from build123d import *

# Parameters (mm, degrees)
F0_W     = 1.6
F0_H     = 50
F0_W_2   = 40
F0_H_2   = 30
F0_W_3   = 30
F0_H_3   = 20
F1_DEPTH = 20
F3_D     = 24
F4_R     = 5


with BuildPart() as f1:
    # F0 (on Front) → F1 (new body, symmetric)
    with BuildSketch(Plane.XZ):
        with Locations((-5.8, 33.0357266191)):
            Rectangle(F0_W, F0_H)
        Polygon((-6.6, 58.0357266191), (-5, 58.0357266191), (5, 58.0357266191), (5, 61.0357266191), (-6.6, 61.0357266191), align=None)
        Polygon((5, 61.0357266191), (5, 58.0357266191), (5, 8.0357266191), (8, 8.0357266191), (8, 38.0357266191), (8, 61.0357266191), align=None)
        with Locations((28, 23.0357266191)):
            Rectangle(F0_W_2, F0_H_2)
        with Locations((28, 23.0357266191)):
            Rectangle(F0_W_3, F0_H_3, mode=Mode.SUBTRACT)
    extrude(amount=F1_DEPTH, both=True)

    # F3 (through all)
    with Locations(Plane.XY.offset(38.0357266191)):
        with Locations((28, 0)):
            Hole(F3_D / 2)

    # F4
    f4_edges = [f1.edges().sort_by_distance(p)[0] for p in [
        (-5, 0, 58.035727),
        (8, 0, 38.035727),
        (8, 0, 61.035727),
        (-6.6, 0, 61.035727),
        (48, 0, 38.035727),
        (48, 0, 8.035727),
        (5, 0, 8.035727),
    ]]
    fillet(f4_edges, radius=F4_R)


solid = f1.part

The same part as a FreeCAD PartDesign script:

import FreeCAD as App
import Part
import Sketcher
Q = App.Units.Quantity


def edges_at(feature, points):
    """Names of the edges that pass closest to the given points."""
    edges = feature.Shape.Edges
    near = lambda p: min(range(len(edges)), key=lambda i: edges[i].distToShape(Part.Vertex(*p))[0])
    return sorted({f"Edge{near(p) + 1}" for p in points})

doc = App.newDocument("Part")
body = doc.addObject("PartDesign::Body", "Body")

# Sketch on XZ plane
sketch1 = body.newObject("Sketcher::SketchObject", "Sketch")
sketch1.AttachmentSupport = (doc.getObject("XZ_Plane"), [""])
sketch1.MapMode = "FlatFace"
sketch1.addGeometry([
    Part.LineSegment(App.Vector(-6.6, 8, 0), App.Vector(-5, 8, 0)),  # 0
    Part.LineSegment(App.Vector(-5, 8, 0), App.Vector(-5, 58, 0)),  # 1
    Part.LineSegment(App.Vector(-5, 58, 0), App.Vector(5, 58, 0)),  # 2
    Part.LineSegment(App.Vector(5, 58, 0), App.Vector(5, 8, 0)),  # 3
    Part.LineSegment(App.Vector(5, 8, 0), App.Vector(48, 8, 0)),  # 4
    Part.LineSegment(App.Vector(48, 8, 0), App.Vector(48, 38, 0)),  # 5
    Part.LineSegment(App.Vector(48, 38, 0), App.Vector(8, 38, 0)),  # 6
    Part.LineSegment(App.Vector(8, 38, 0), App.Vector(8, 61, 0)),  # 7
    Part.LineSegment(App.Vector(8, 61, 0), App.Vector(-6.6, 61, 0)),  # 8
    Part.LineSegment(App.Vector(-6.6, 61, 0), App.Vector(-6.6, 8, 0)),  # 9
    Part.LineSegment(App.Vector(43, 13, 0), App.Vector(13, 13, 0)),  # 10
    Part.LineSegment(App.Vector(13, 13, 0), App.Vector(13, 33, 0)),  # 11
    Part.LineSegment(App.Vector(13, 33, 0), App.Vector(43, 33, 0)),  # 12
    Part.LineSegment(App.Vector(43, 33, 0), App.Vector(43, 13, 0)),  # 13
], False)
sketch1.addConstraint([
    Sketcher.Constraint("Coincident", 0, 2, 1, 1),
    Sketcher.Constraint("Coincident", 1, 2, 2, 1),
    Sketcher.Constraint("Coincident", 2, 2, 3, 1),
    Sketcher.Constraint("Coincident", 3, 2, 4, 1),
    Sketcher.Constraint("Coincident", 4, 2, 5, 1),
    Sketcher.Constraint("Coincident", 5, 2, 6, 1),
    Sketcher.Constraint("Coincident", 6, 2, 7, 1),
    Sketcher.Constraint("Coincident", 7, 2, 8, 1),
    Sketcher.Constraint("Coincident", 8, 2, 9, 1),
    Sketcher.Constraint("Coincident", 9, 2, 0, 1),
    Sketcher.Constraint("Coincident", 10, 2, 11, 1),
    Sketcher.Constraint("Coincident", 11, 2, 12, 1),
    Sketcher.Constraint("Coincident", 12, 2, 13, 1),
    Sketcher.Constraint("Coincident", 13, 2, 10, 1),
    Sketcher.Constraint("Horizontal", 0),
    Sketcher.Constraint("Vertical", 1),
    Sketcher.Constraint("Horizontal", 2),
    Sketcher.Constraint("Vertical", 3),
    Sketcher.Constraint("Horizontal", 4),
    Sketcher.Constraint("Vertical", 5),
    Sketcher.Constraint("Horizontal", 6),
    Sketcher.Constraint("Vertical", 7),
    Sketcher.Constraint("Horizontal", 8),
    Sketcher.Constraint("Vertical", 9),
    Sketcher.Constraint("Horizontal", 10),
    Sketcher.Constraint("Vertical", 11),
    Sketcher.Constraint("Horizontal", 12),
    Sketcher.Constraint("Vertical", 13),
    Sketcher.Constraint("Symmetric", 0, 2, 3, 2, -2),
    Sketcher.Constraint("Equal", 12, 5),
    Sketcher.Constraint("DistanceX", 2, 1, 2, 2, Q("10 mm")),
    Sketcher.Constraint("DistanceX", 4, 1, 4, 2, Q("43 mm")),
    Sketcher.Constraint("DistanceX", 6, 2, 6, 1, Q("40 mm")),
    Sketcher.Constraint("DistanceX", 10, 2, 10, 1, Q("30 mm")),
    Sketcher.Constraint("DistanceY", 1, 1, 1, 2, Q("50 mm")),
    Sketcher.Constraint("DistanceY", 7, 1, 7, 2, Q("23 mm")),
    Sketcher.Constraint("DistanceY", 11, 1, 11, 2, Q("20 mm")),
    Sketcher.Constraint("DistanceX", 0, 1, 0, 2, Q("1.6 mm")),
    Sketcher.Constraint("DistanceX", -1, 1, 10, 2, Q("13 mm")),
    Sketcher.Constraint("DistanceY", 3, 2, 10, 2, Q("5 mm")),
    Sketcher.Constraint("DistanceY", -1, 1, 0, 2, Q("8.035727 mm")),
])
pad1 = body.newObject("PartDesign::Pad", "Pad")
pad1.Profile = sketch1
pad1.Length = 40
pad1.Midplane = True

# Sketch on XY plane
sketch2 = body.newObject("Sketcher::SketchObject", "Sketch001")
sketch2.AttachmentSupport = (doc.getObject("XY_Plane"), [""])
sketch2.MapMode = "FlatFace"
sketch2.AttachmentOffset = App.Placement(App.Vector(0, 0, 38.035727), App.Rotation())
sketch2.addGeometry(Part.Circle(App.Vector(28, 0, 0), App.Vector(0, 0, 1), 12), False)
sketch2.addConstraint([
    Sketcher.Constraint("PointOnObject", 0, 3, -1),
    Sketcher.Constraint("Diameter", 0, Q("24 mm")),
    Sketcher.Constraint("DistanceX", -1, 1, 0, 3, Q("28 mm")),
])
doc.recompute()
hole = body.newObject("PartDesign::Hole", "Hole")
hole.Profile = sketch2
hole.ThreadType = "None"
hole.Diameter = 24
hole.DepthType = "ThroughAll"
doc.recompute()

fillet = body.newObject("PartDesign::Fillet", "Fillet")
fillet.Base = (hole, edges_at(hole, [
    (-5, 0, 58.036),
    (8, 0, 38.036),
    (8, 0, 61.036),
    (-6.6, 0, 61.036),
    (48, 0, 38.036),
    (48, 0, 8.036),
    (5, 0, 8.036),
]))
fillet.Radius = 5

doc.recompute()
